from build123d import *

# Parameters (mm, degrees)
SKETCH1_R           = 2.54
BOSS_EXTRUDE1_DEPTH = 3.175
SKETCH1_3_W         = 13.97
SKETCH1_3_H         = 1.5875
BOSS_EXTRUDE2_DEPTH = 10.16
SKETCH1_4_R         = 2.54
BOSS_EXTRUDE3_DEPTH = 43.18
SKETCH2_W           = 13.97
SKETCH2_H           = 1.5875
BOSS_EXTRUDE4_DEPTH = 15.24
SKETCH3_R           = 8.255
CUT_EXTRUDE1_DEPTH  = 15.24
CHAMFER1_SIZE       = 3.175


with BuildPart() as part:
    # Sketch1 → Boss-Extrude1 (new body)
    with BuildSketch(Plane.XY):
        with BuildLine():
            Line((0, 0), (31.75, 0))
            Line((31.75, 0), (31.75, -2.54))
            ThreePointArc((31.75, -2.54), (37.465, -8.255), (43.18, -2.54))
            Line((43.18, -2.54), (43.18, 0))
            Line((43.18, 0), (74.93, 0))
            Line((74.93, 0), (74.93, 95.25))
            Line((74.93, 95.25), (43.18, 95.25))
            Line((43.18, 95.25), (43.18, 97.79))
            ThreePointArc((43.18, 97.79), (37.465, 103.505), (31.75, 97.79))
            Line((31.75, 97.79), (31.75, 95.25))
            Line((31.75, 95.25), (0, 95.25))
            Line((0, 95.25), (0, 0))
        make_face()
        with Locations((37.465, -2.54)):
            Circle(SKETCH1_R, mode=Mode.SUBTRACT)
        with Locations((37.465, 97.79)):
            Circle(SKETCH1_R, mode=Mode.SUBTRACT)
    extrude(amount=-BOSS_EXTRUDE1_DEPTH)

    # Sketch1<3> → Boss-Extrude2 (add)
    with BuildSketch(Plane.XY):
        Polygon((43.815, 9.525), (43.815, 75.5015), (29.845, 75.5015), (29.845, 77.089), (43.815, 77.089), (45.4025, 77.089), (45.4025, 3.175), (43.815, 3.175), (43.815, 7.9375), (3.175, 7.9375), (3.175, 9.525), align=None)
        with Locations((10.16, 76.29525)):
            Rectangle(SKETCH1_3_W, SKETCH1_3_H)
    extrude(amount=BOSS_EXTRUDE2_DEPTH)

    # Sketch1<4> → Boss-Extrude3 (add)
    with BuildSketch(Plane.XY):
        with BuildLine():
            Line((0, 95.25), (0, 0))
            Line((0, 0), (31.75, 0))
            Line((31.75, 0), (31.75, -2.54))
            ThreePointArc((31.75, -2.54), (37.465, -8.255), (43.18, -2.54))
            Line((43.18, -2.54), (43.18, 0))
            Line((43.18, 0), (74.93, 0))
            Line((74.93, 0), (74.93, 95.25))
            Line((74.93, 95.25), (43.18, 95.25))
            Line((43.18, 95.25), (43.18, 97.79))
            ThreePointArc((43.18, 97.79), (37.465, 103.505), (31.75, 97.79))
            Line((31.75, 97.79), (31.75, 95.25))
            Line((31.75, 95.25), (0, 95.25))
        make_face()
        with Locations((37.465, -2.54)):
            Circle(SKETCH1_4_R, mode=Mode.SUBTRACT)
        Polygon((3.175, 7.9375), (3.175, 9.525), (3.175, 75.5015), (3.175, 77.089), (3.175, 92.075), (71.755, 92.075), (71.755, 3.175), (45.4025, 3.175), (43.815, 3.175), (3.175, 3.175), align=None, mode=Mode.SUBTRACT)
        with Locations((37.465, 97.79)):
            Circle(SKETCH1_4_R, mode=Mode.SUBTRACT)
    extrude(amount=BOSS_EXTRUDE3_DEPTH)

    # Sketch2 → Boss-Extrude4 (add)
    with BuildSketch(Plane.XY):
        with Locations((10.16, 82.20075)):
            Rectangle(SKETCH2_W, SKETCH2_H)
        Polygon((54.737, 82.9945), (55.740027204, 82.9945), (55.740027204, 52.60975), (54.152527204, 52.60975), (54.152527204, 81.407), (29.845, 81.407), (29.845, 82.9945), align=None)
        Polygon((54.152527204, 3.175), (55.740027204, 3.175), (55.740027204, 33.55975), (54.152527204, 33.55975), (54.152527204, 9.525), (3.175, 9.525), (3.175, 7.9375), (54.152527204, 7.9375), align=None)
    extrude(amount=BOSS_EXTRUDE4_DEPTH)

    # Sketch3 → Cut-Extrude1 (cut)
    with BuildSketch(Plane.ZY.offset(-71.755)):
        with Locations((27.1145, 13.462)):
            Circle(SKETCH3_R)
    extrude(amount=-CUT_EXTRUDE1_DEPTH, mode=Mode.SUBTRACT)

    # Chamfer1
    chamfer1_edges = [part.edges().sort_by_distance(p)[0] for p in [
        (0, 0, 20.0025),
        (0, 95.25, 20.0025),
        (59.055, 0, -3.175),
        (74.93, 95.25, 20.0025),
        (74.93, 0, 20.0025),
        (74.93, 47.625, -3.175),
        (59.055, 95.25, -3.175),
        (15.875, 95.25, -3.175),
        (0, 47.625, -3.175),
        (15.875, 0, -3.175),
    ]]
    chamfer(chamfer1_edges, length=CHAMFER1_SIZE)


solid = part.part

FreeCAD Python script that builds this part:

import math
import FreeCAD as App
import Part
import Sketcher
from FreeCAD import Vector
Q = App.Units.Quantity


def edges_at(feature, points):
    """Names of the edges that pass closest to the given points."""
    edges = feature.Shape.Edges
    near = lambda p: min(range(len(edges)), key=lambda i: edges[i].distToShape(Part.Vertex(*p))[0])
    return sorted({f"Edge{near(p) + 1}" for p in points})

doc = App.newDocument("Part")
body = doc.addObject("PartDesign::Body", "Body")

sketch1 = body.newObject("Sketcher::SketchObject", "Sketch")
sketch1.AttachmentSupport = (doc.getObject("XY_Plane"), [""])
sketch1.MapMode = "FlatFace"
sketch1.addGeometry(Part.LineSegment(Vector(0, 0, 0), Vector(31.8, 0, 0)), False)
sketch1.addGeometry(Part.LineSegment(Vector(31.8, 0, 0), Vector(31.8, -2.5, 0)), False)
sketch1.addGeometry(Part.ArcOfCircle(Part.Circle(Vector(37.5, -2.5, 0), Vector(0, 0, 1), 5.7), math.radians(180), math.radians(360)), False)
sketch1.addGeometry(Part.LineSegment(Vector(43.2, -2.5, 0), Vector(43.2, 0, 0)), False)
sketch1.addGeometry(Part.LineSegment(Vector(43.2, 0, 0), Vector(74.9, 0, 0)), False)
sketch1.addGeometry(Part.LineSegment(Vector(74.9, 0, 0), Vector(74.9, 95.2, 0)), False)
sketch1.addGeometry(Part.LineSegment(Vector(74.9, 95.2, 0), Vector(43.2, 95.2, 0)), False)
sketch1.addGeometry(Part.LineSegment(Vector(43.2, 95.2, 0), Vector(43.2, 97.8, 0)), False)
sketch1.addGeometry(Part.ArcOfCircle(Part.Circle(Vector(37.5, 97.8, 0), Vector(0, 0, 1), 5.7), math.radians(0), math.radians(180)), False)
sketch1.addGeometry(Part.LineSegment(Vector(31.8, 97.8, 0), Vector(31.8, 95.2, 0)), False)
sketch1.addGeometry(Part.LineSegment(Vector(31.8, 95.2, 0), Vector(0, 95.2, 0)), False)
sketch1.addGeometry(Part.LineSegment(Vector(0, 95.2, 0), Vector(0, 0, 0)), False)
sketch1.addGeometry(Part.Circle(Vector(37.5, -2.5, 0), Vector(0, 0, 1), 2.5), False)
sketch1.addGeometry(Part.Circle(Vector(37.5, 97.8, 0), Vector(0, 0, 1), 2.5), False)
sketch1.addConstraint(Sketcher.Constraint("Coincident", 0, 2, 1, 1))
sketch1.addConstraint(Sketcher.Constraint("Tangent", 1, 2, 2, 1))
sketch1.addConstraint(Sketcher.Constraint("Tangent", 2, 2, 3, 1))
sketch1.addConstraint(Sketcher.Constraint("Coincident", 3, 2, 4, 1))
sketch1.addConstraint(Sketcher.Constraint("Coincident", 4, 2, 5, 1))
sketch1.addConstraint(Sketcher.Constraint("Coincident", 5, 2, 6, 1))
sketch1.addConstraint(Sketcher.Constraint("Coincident", 6, 2, 7, 1))
sketch1.addConstraint(Sketcher.Constraint("Tangent", 7, 2, 8, 1))
sketch1.addConstraint(Sketcher.Constraint("Tangent", 8, 2, 9, 1))
sketch1.addConstraint(Sketcher.Constraint("Coincident", 9, 2, 10, 1))
sketch1.addConstraint(Sketcher.Constraint("Coincident", 10, 2, 11, 1))
sketch1.addConstraint(Sketcher.Constraint("Coincident", 11, 2, 0, 1))
sketch1.addConstraint(Sketcher.Constraint("Horizontal", 0))
sketch1.addConstraint(Sketcher.Constraint("Vertical", 1))
sketch1.addConstraint(Sketcher.Constraint("Vertical", 3))
sketch1.addConstraint(Sketcher.Constraint("Horizontal", 4))
sketch1.addConstraint(Sketcher.Constraint("Vertical", 5))
sketch1.addConstraint(Sketcher.Constraint("Horizontal", 6))
sketch1.addConstraint(Sketcher.Constraint("Vertical", 7))
sketch1.addConstraint(Sketcher.Constraint("Vertical", 9))
sketch1.addConstraint(Sketcher.Constraint("Horizontal", 10))
sketch1.addConstraint(Sketcher.Constraint("Vertical", 11))
sketch1.addConstraint(Sketcher.Constraint("Coincident", 11, 2, -1, 1))
sketch1.addConstraint(Sketcher.Constraint("Coincident", 12, 3, 2, 3))
sketch1.addConstraint(Sketcher.Constraint("Coincident", 13, 3, 8, 3))
sketch1.addConstraint(Sketcher.Constraint("Equal", 2, 8))
sketch1.addConstraint(Sketcher.Constraint("Equal", 12, 13))
sketch1.addConstraint(Sketcher.Constraint("PointOnObject", 3, 2, -1))
sketch1.addConstraint(Sketcher.Constraint("Horizontal", 6, 2, 9, 2))
sketch1.addConstraint(Sketcher.Constraint("Vertical", 2, 3, 8, 3))
sketch1.addConstraint(Sketcher.Constraint("Equal", 0, 4))
sketch1.addConstraint(Sketcher.Constraint("Equal", 3, 7))
sketch1.addConstraint(Sketcher.Constraint("Diameter", 12, Q("0.2 in")))
sketch1.addConstraint(Sketcher.Constraint("DistanceY", 1, 2, 1, 1, Q("0.1 in")))
sketch1.addConstraint(Sketcher.Constraint("Radius", 2, Q("0.225 in")))
sketch1.addConstraint(Sketcher.Constraint("DistanceX", 0, 1, 0, 2, Q("1.25 in")))
sketch1.addConstraint(Sketcher.Constraint("DistanceY", 5, 1, 5, 2, Q("3.75 in")))
pad1 = body.newObject("PartDesign::Pad", "Pad")
pad1.Profile = sketch1
pad1.Length = Q("0.125 in")
pad1.Reversed = True

sketch2 = body.newObject("Sketcher::SketchObject", "Sketch001")
sketch2.AttachmentSupport = (doc.getObject("XY_Plane"), [""])
sketch2.MapMode = "FlatFace"
sketch2.addGeometry(Part.LineSegment(Vector(43.8, 75.5, 0), Vector(43.8, 9.5, 0)), False)
sketch2.addGeometry(Part.LineSegment(Vector(43.8, 9.5, 0), Vector(3.2, 9.5, 0)), False)
sketch2.addGeometry(Part.LineSegment(Vector(3.2, 9.5, 0), Vector(3.2, 7.9, 0)), False)
sketch2.addGeometry(Part.LineSegment(Vector(3.2, 7.9, 0), Vector(43.8, 7.9, 0)), False)
sketch2.addGeometry(Part.LineSegment(Vector(43.8, 7.9, 0), Vector(43.8, 3.2, 0)), False)
sketch2.addGeometry(Part.LineSegment(Vector(43.8, 3.2, 0), Vector(45.4, 3.2, 0)), False)
sketch2.addGeometry(Part.LineSegment(Vector(45.4, 3.2, 0), Vector(45.4, 77.1, 0)), False)
sketch2.addGeometry(Part.LineSegment(Vector(45.4, 77.1, 0), Vector(29.8, 77.1, 0)), False)
sketch2.addGeometry(Part.LineSegment(Vector(29.8, 77.1, 0), Vector(29.8, 75.5, 0)), False)
sketch2.addGeometry(Part.LineSegment(Vector(29.8, 75.5, 0), Vector(43.8, 75.5, 0)), False)
sketch2.addGeometry(Part.LineSegment(Vector(3.2, 77.1, 0), Vector(3.2, 75.5, 0)), False)
sketch2.addGeometry(Part.LineSegment(Vector(3.2, 75.5, 0), Vector(17.1, 75.5, 0)), False)
sketch2.addGeometry(Part.LineSegment(Vector(17.1, 75.5, 0), Vector(17.1, 77.1, 0)), False)
sketch2.addGeometry(Part.LineSegment(Vector(17.1, 77.1, 0), Vector(3.2, 77.1, 0)), False)
sketch2.addConstraint(Sketcher.Constraint("Coincident", 0, 2, 1, 1))
sketch2.addConstraint(Sketcher.Constraint("Coincident", 1, 2, 2, 1))
sketch2.addConstraint(Sketcher.Constraint("Coincident", 2, 2, 3, 1))
sketch2.addConstraint(Sketcher.Constraint("Coincident", 3, 2, 4, 1))
sketch2.addConstraint(Sketcher.Constraint("Coincident", 4, 2, 5, 1))
sketch2.addConstraint(Sketcher.Constraint("Coincident", 5, 2, 6, 1))
sketch2.addConstraint(Sketcher.Constraint("Coincident", 6, 2, 7, 1))
sketch2.addConstraint(Sketcher.Constraint("Coincident", 7, 2, 8, 1))
sketch2.addConstraint(Sketcher.Constraint("Coincident", 8, 2, 9, 1))
sketch2.addConstraint(Sketcher.Constraint("Coincident", 9, 2, 0, 1))
sketch2.addConstraint(Sketcher.Constraint("Coincident", 10, 2, 11, 1))
sketch2.addConstraint(Sketcher.Constraint("Coincident", 11, 2, 12, 1))
sketch2.addConstraint(Sketcher.Constraint("Coincident", 12, 2, 13, 1))
sketch2.addConstraint(Sketcher.Constraint("Coincident", 13, 2, 10, 1))
sketch2.addConstraint(Sketcher.Constraint("Vertical", 0))
sketch2.addConstraint(Sketcher.Constraint("Horizontal", 1))
sketch2.addConstraint(Sketcher.Constraint("Vertical", 2))
sketch2.addConstraint(Sketcher.Constraint("Horizontal", 3))
sketch2.addConstraint(Sketcher.Constraint("Vertical", 4))
sketch2.addConstraint(Sketcher.Constraint("Horizontal", 5))
sketch2.addConstraint(Sketcher.Constraint("Vertical", 6))
sketch2.addConstraint(Sketcher.Constraint("Horizontal", 7))
sketch2.addConstraint(Sketcher.Constraint("Vertical", 8))
sketch2.addConstraint(Sketcher.Constraint("Horizontal", 9))
sketch2.addConstraint(Sketcher.Constraint("Vertical", 10))
sketch2.addConstraint(Sketcher.Constraint("Horizontal", 11))
sketch2.addConstraint(Sketcher.Constraint("Vertical", 12))
sketch2.addConstraint(Sketcher.Constraint("Horizontal", 13))
sketch2.addConstraint(Sketcher.Constraint("Horizontal", 9, 2, 10, 2))
sketch2.addConstraint(Sketcher.Constraint("Horizontal", 7, 2, 12, 2))
sketch2.addConstraint(Sketcher.Constraint("Vertical", 0, 2, 3, 2))
sketch2.addConstraint(Sketcher.Constraint("Vertical", 2, 2, 10, 2))
sketch2.addConstraint(Sketcher.Constraint("Equal", 9, 11))
sketch2.addConstraint(Sketcher.Constraint("Equal", 5, 2))
sketch2.addConstraint(Sketcher.Constraint("Equal", 2, 8))
sketch2.addConstraint(Sketcher.Constraint("DistanceX", 1, 2, 1, 1, Q("1.6 in")))
sketch2.addConstraint(Sketcher.Constraint("DistanceX", 9, 1, 9, 2, Q("0.55 in")))
sketch2.addConstraint(Sketcher.Constraint("DistanceY", 6, 1, 6, 2, Q("2.91 in")))
sketch2.addConstraint(Sketcher.Constraint("DistanceX", 5, 1, 5, 2, Q("0.0625 in")))
sketch2.addConstraint(Sketcher.Constraint("DistanceY", 4, 2, 4, 1, Q("0.1875 in")))
sketch2.addConstraint(Sketcher.Constraint("DistanceX", -1, 1, 0, 2, Q("1.725 in")))
sketch2.addConstraint(Sketcher.Constraint("DistanceY", -1, 1, 0, 2, Q("0.375 in")))
pad2 = body.newObject("PartDesign::Pad", "Pad001")
pad2.Profile = sketch2
pad2.Length = Q("0.4 in")

sketch3 = body.newObject("Sketcher::SketchObject", "Sketch002")
sketch3.AttachmentSupport = (doc.getObject("XY_Plane"), [""])
sketch3.MapMode = "FlatFace"
sketch3.addGeometry(Part.LineSegment(Vector(0, 95.2, 0), Vector(0, 0, 0)), False)
sketch3.addGeometry(Part.LineSegment(Vector(0, 0, 0), Vector(31.8, 0, 0)), False)
sketch3.addGeometry(Part.LineSegment(Vector(31.8, 0, 0), Vector(31.8, -2.5, 0)), False)
sketch3.addGeometry(Part.ArcOfCircle(Part.Circle(Vector(37.5, -2.5, 0), Vector(0, 0, 1), 5.7), math.radians(180), math.radians(360)), False)
sketch3.addGeometry(Part.LineSegment(Vector(43.2, -2.5, 0), Vector(43.2, 0, 0)), False)
sketch3.addGeometry(Part.LineSegment(Vector(43.2, 0, 0), Vector(74.9, 0, 0)), False)
sketch3.addGeometry(Part.LineSegment(Vector(74.9, 0, 0), Vector(74.9, 95.2, 0)), False)
sketch3.addGeometry(Part.LineSegment(Vector(74.9, 95.2, 0), Vector(43.2, 95.2, 0)), False)
sketch3.addGeometry(Part.LineSegment(Vector(43.2, 95.2, 0), Vector(43.2, 97.8, 0)), False)
sketch3.addGeometry(Part.ArcOfCircle(Part.Circle(Vector(37.5, 97.8, 0), Vector(0, 0, 1), 5.7), math.radians(0), math.radians(180)), False)
sketch3.addGeometry(Part.LineSegment(Vector(31.8, 97.8, 0), Vector(31.8, 95.2, 0)), False)
sketch3.addGeometry(Part.LineSegment(Vector(31.8, 95.2, 0), Vector(0, 95.2, 0)), False)
sketch3.addGeometry(Part.Circle(Vector(37.5, -2.5, 0), Vector(0, 0, 1), 2.5), False)
sketch3.addGeometry(Part.LineSegment(Vector(3.2, 3.2, 0), Vector(3.2, 92.1, 0)), False)
sketch3.addGeometry(Part.LineSegment(Vector(3.2, 92.1, 0), Vector(71.8, 92.1, 0)), False)
sketch3.addGeometry(Part.LineSegment(Vector(71.8, 92.1, 0), Vector(71.8, 3.2, 0)), False)
sketch3.addGeometry(Part.LineSegment(Vector(71.8, 3.2, 0), Vector(3.2, 3.2, 0)), False)
sketch3.addGeometry(Part.Circle(Vector(37.5, 97.8, 0), Vector(0, 0, 1), 2.5), False)
sketch3.addConstraint(Sketcher.Constraint("Coincident", 0, 2, 1, 1))
sketch3.addConstraint(Sketcher.Constraint("Coincident", 1, 2, 2, 1))
sketch3.addConstraint(Sketcher.Constraint("Tangent", 2, 2, 3, 1))
sketch3.addConstraint(Sketcher.Constraint("Tangent", 3, 2, 4, 1))
sketch3.addConstraint(Sketcher.Constraint("Coincident", 4, 2, 5, 1))
sketch3.addConstraint(Sketcher.Constraint("Coincident", 5, 2, 6, 1))
sketch3.addConstraint(Sketcher.Constraint("Coincident", 6, 2, 7, 1))
sketch3.addConstraint(Sketcher.Constraint("Coincident", 7, 2, 8, 1))
sketch3.addConstraint(Sketcher.Constraint("Tangent", 8, 2, 9, 1))
sketch3.addConstraint(Sketcher.Constraint("Tangent", 9, 2, 10, 1))
sketch3.addConstraint(Sketcher.Constraint("Coincident", 10, 2, 11, 1))
sketch3.addConstraint(Sketcher.Constraint("Coincident", 11, 2, 0, 1))
sketch3.addConstraint(Sketcher.Constraint("Coincident", 13, 2, 14, 1))
sketch3.addConstraint(Sketcher.Constraint("Coincident", 14, 2, 15, 1))
sketch3.addConstraint(Sketcher.Constraint("Coincident", 15, 2, 16, 1))
sketch3.addConstraint(Sketcher.Constraint("Coincident", 16, 2, 13, 1))
sketch3.addConstraint(Sketcher.Constraint("Vertical", 0))
sketch3.addConstraint(Sketcher.Constraint("Horizontal", 1))
sketch3.addConstraint(Sketcher.Constraint("Vertical", 2))
sketch3.addConstraint(Sketcher.Constraint("Vertical", 4))
sketch3.addConstraint(Sketcher.Constraint("Horizontal", 5))
sketch3.addConstraint(Sketcher.Constraint("Vertical", 6))
sketch3.addConstraint(Sketcher.Constraint("Horizontal", 7))
sketch3.addConstraint(Sketcher.Constraint("Vertical", 8))
sketch3.addConstraint(Sketcher.Constraint("Vertical", 10))
sketch3.addConstraint(Sketcher.Constraint("Horizontal", 11))
sketch3.addConstraint(Sketcher.Constraint("Vertical", 13))
sketch3.addConstraint(Sketcher.Constraint("Horizontal", 14))
sketch3.addConstraint(Sketcher.Constraint("Vertical", 15))
sketch3.addConstraint(Sketcher.Constraint("Horizontal", 16))
sketch3.addConstraint(Sketcher.Constraint("Coincident", 0, 2, -1, 1))
sketch3.addConstraint(Sketcher.Constraint("Coincident", 12, 3, 3, 3))
sketch3.addConstraint(Sketcher.Constraint("Coincident", 17, 3, 9, 3))
sketch3.addConstraint(Sketcher.Constraint("Equal", 3, 9))
sketch3.addConstraint(Sketcher.Constraint("Equal", 12, 17))
sketch3.addConstraint(Sketcher.Constraint("PointOnObject", 4, 2, -1))
sketch3.addConstraint(Sketcher.Constraint("Horizontal", 7, 2, 10, 2))
sketch3.addConstraint(Sketcher.Constraint("Vertical", 3, 3, 9, 3))
sketch3.addConstraint(Sketcher.Constraint("Equal", 1, 5))
sketch3.addConstraint(Sketcher.Constraint("Equal", 4, 8))
sketch3.addConstraint(Sketcher.Constraint("Diameter", 12, Q("0.2 in")))
sketch3.addConstraint(Sketcher.Constraint("DistanceX", 14, 1, 14, 2, Q("2.7 in")))
sketch3.addConstraint(Sketcher.Constraint("DistanceY", 2, 2, 2, 1, Q("0.1 in")))
sketch3.addConstraint(Sketcher.Constraint("DistanceY", 13, 1, 13, 2, Q("3.5 in")))
sketch3.addConstraint(Sketcher.Constraint("Radius", 3, Q("0.225 in")))
sketch3.addConstraint(Sketcher.Constraint("DistanceX", 1, 1, 1, 2, Q("1.25 in")))
sketch3.addConstraint(Sketcher.Constraint("DistanceY", 0, 2, 0, 1, Q("3.75 in")))
sketch3.addConstraint(Sketcher.Constraint("DistanceX", 13, 2, 9, 3, Q("1.35 in")))
sketch3.addConstraint(Sketcher.Constraint("DistanceY", -1, 1, 13, 2, Q("3.625 in")))
pad3 = body.newObject("PartDesign::Pad", "Pad002")
pad3.Profile = sketch3
pad3.Length = Q("1.7 in")

sketch4 = body.newObject("Sketcher::SketchObject", "Sketch003")
sketch4.AttachmentSupport = (doc.getObject("XY_Plane"), [""])
sketch4.MapMode = "FlatFace"
sketch4.addGeometry(Part.LineSegment(Vector(3.2, 83, 0), Vector(3.2, 81.4, 0)), False)
sketch4.addGeometry(Part.LineSegment(Vector(3.2, 81.4, 0), Vector(17.1, 81.4, 0)), False)
sketch4.addGeometry(Part.LineSegment(Vector(17.1, 81.4, 0), Vector(17.1, 83, 0)), False)
sketch4.addGeometry(Part.LineSegment(Vector(17.1, 83, 0), Vector(3.2, 83, 0)), False)
sketch4.addGeometry(Part.LineSegment(Vector(55.7, 83, 0), Vector(29.8, 83, 0)), False)
sketch4.addGeometry(Part.LineSegment(Vector(29.8, 83, 0), Vector(29.8, 81.4, 0)), False)
sketch4.addGeometry(Part.LineSegment(Vector(29.8, 81.4, 0), Vector(54.2, 81.4, 0)), False)
sketch4.addGeometry(Part.LineSegment(Vector(54.2, 81.4, 0), Vector(54.2, 52.6, 0)), False)
sketch4.addGeometry(Part.LineSegment(Vector(54.2, 52.6, 0), Vector(55.7, 52.6, 0)), False)
sketch4.addGeometry(Part.LineSegment(Vector(55.7, 52.6, 0), Vector(55.7, 83, 0)), False)
sketch4.addGeometry(Part.LineSegment(Vector(54.2, 3.2, 0), Vector(55.7, 3.2, 0)), False)
sketch4.addGeometry(Part.LineSegment(Vector(55.7, 3.2, 0), Vector(55.7, 33.6, 0)), False)
sketch4.addGeometry(Part.LineSegment(Vector(55.7, 33.6, 0), Vector(54.2, 33.6, 0)), False)
sketch4.addGeometry(Part.LineSegment(Vector(54.2, 33.6, 0), Vector(54.2, 9.5, 0)), False)
sketch4.addGeometry(Part.LineSegment(Vector(54.2, 9.5, 0), Vector(3.2, 9.5, 0)), False)
sketch4.addGeometry(Part.LineSegment(Vector(3.2, 9.5, 0), Vector(3.2, 7.9, 0)), False)
sketch4.addGeometry(Part.LineSegment(Vector(3.2, 7.9, 0), Vector(54.2, 7.9, 0)), False)
sketch4.addGeometry(Part.LineSegment(Vector(54.2, 7.9, 0), Vector(54.2, 3.2, 0)), False)
sketch4.addConstraint(Sketcher.Constraint("Coincident", 0, 2, 1, 1))
sketch4.addConstraint(Sketcher.Constraint("Coincident", 1, 2, 2, 1))
sketch4.addConstraint(Sketcher.Constraint("Coincident", 2, 2, 3, 1))
sketch4.addConstraint(Sketcher.Constraint("Coincident", 3, 2, 0, 1))
sketch4.addConstraint(Sketcher.Constraint("Coincident", 4, 2, 5, 1))
sketch4.addConstraint(Sketcher.Constraint("Coincident", 5, 2, 6, 1))
sketch4.addConstraint(Sketcher.Constraint("Coincident", 6, 2, 7, 1))
sketch4.addConstraint(Sketcher.Constraint("Coincident", 7, 2, 8, 1))
sketch4.addConstraint(Sketcher.Constraint("Coincident", 8, 2, 9, 1))
sketch4.addConstraint(Sketcher.Constraint("Coincident", 9, 2, 4, 1))
sketch4.addConstraint(Sketcher.Constraint("Coincident", 10, 2, 11, 1))
sketch4.addConstraint(Sketcher.Constraint("Coincident", 11, 2, 12, 1))
sketch4.addConstraint(Sketcher.Constraint("Coincident", 12, 2, 13, 1))
sketch4.addConstraint(Sketcher.Constraint("Coincident", 13, 2, 14, 1))
sketch4.addConstraint(Sketcher.Constraint("Coincident", 14, 2, 15, 1))
sketch4.addConstraint(Sketcher.Constraint("Coincident", 15, 2, 16, 1))
sketch4.addConstraint(Sketcher.Constraint("Coincident", 16, 2, 17, 1))
sketch4.addConstraint(Sketcher.Constraint("Coincident", 17, 2, 10, 1))
sketch4.addConstraint(Sketcher.Constraint("Vertical", 0))
sketch4.addConstraint(Sketcher.Constraint("Horizontal", 1))
sketch4.addConstraint(Sketcher.Constraint("Vertical", 2))
sketch4.addConstraint(Sketcher.Constraint("Horizontal", 3))
sketch4.addConstraint(Sketcher.Constraint("Horizontal", 4))
sketch4.addConstraint(Sketcher.Constraint("Vertical", 5))
sketch4.addConstraint(Sketcher.Constraint("Horizontal", 6))
sketch4.addConstraint(Sketcher.Constraint("Vertical", 7))
sketch4.addConstraint(Sketcher.Constraint("Horizontal", 8))
sketch4.addConstraint(Sketcher.Constraint("Vertical", 9))
sketch4.addConstraint(Sketcher.Constraint("Horizontal", 10))
sketch4.addConstraint(Sketcher.Constraint("Vertical", 11))
sketch4.addConstraint(Sketcher.Constraint("Horizontal", 12))
sketch4.addConstraint(Sketcher.Constraint("Vertical", 13))
sketch4.addConstraint(Sketcher.Constraint("Horizontal", 14))
sketch4.addConstraint(Sketcher.Constraint("Vertical", 15))
sketch4.addConstraint(Sketcher.Constraint("Horizontal", 16))
sketch4.addConstraint(Sketcher.Constraint("Vertical", 17))
sketch4.addConstraint(Sketcher.Constraint("Horizontal", 3, 2, 4, 2))
sketch4.addConstraint(Sketcher.Constraint("Horizontal", 1, 2, 5, 2))
sketch4.addConstraint(Sketcher.Constraint("Vertical", 9, 2, 10, 2))
sketch4.addConstraint(Sketcher.Constraint("Vertical", 7, 2, 12, 2))
sketch4.addConstraint(Sketcher.Constraint("Vertical", 3, 2, 14, 2))
sketch4.addConstraint(Sketcher.Constraint("Vertical", 13, 2, 16, 2))
sketch4.addConstraint(Sketcher.Constraint("Equal", 12, 0))
sketch4.addConstraint(Sketcher.Constraint("Equal", 9, 11))
sketch4.addConstraint(Sketcher.Constraint("Equal", 5, 15))
sketch4.addConstraint(Sketcher.Constraint("DistanceX", 1, 1, 1, 2, Q("0.55 in")))
sketch4.addConstraint(Sketcher.Constraint("DistanceX", 2, 2, 4, 2, Q("0.5 in")))
sketch4.addConstraint(Sketcher.Constraint("DistanceX", 8, 1, 8, 2, Q("0.0625 in")))
sketch4.addConstraint(Sketcher.Constraint("DistanceY", 17, 2, 17, 1, Q("0.1875 in")))
sketch4.addConstraint(Sketcher.Constraint("DistanceY", 10, 2, 6, 2, Q("3.08 in")))
sketch4.addConstraint(Sketcher.Constraint("DistanceY", 11, 2, 8, 2, Q("0.75 in")))
sketch4.addConstraint(Sketcher.Constraint("DistanceX", -1, 1, 0, 2, Q("0.125 in")))
sketch4.addConstraint(Sketcher.Constraint("DistanceY", -1, 1, 0, 2, Q("3.205 in")))
sketch4.addConstraint(Sketcher.Constraint("DistanceX", 4, 2, 4, 1, 25.895027))
pad4 = body.newObject("PartDesign::Pad", "Pad003")
pad4.Profile = sketch4
pad4.Length = Q("0.6 in")

sketch5 = body.newObject("Sketcher::SketchObject", "Sketch004")
sketch5.AttachmentSupport = (doc.getObject("YZ_Plane"), [""])
sketch5.MapMode = "FlatFace"
sketch5.AttachmentOffset = App.Placement(Vector(0, 0, 2.825 * 25.4), App.Rotation())
sketch5.addGeometry(Part.Circle(Vector(13, 27, 0), Vector(0, 0, 1), 8), False)
sketch5.addConstraint(Sketcher.Constraint("Diameter", 0, Q("0.65 in")))
sketch5.addConstraint(Sketcher.Constraint("DistanceX", -1, 1, 0, 3, Q("0.53 in")))
sketch5.addConstraint(Sketcher.Constraint("DistanceY", -1, 1, 0, 3, Q("1.0675 in")))
pocket1 = body.newObject("PartDesign::Pocket", "Pocket")
pocket1.Profile = sketch5
pocket1.Length = Q("0.6 in")
pocket1.Reversed = True
doc.recompute()

chamfer = body.newObject("PartDesign::Chamfer", "Chamfer")
chamfer.Base = (pocket1, edges_at(pocket1, [
    (0, 0, 20.003),
    (0, 95.25, 20.003),
    (59.055, 0, -3.175),
    (74.93, 95.25, 20.003),
    (74.93, 0, 20.003),
    (74.93, 47.625, -3.175),
    (59.055, 95.25, -3.175),
    (15.875, 95.25, -3.175),
    (0, 47.625, -3.175),
    (15.875, 0, -3.175),
]))
chamfer.Size = Q("0.125 in")

doc.recompute()
